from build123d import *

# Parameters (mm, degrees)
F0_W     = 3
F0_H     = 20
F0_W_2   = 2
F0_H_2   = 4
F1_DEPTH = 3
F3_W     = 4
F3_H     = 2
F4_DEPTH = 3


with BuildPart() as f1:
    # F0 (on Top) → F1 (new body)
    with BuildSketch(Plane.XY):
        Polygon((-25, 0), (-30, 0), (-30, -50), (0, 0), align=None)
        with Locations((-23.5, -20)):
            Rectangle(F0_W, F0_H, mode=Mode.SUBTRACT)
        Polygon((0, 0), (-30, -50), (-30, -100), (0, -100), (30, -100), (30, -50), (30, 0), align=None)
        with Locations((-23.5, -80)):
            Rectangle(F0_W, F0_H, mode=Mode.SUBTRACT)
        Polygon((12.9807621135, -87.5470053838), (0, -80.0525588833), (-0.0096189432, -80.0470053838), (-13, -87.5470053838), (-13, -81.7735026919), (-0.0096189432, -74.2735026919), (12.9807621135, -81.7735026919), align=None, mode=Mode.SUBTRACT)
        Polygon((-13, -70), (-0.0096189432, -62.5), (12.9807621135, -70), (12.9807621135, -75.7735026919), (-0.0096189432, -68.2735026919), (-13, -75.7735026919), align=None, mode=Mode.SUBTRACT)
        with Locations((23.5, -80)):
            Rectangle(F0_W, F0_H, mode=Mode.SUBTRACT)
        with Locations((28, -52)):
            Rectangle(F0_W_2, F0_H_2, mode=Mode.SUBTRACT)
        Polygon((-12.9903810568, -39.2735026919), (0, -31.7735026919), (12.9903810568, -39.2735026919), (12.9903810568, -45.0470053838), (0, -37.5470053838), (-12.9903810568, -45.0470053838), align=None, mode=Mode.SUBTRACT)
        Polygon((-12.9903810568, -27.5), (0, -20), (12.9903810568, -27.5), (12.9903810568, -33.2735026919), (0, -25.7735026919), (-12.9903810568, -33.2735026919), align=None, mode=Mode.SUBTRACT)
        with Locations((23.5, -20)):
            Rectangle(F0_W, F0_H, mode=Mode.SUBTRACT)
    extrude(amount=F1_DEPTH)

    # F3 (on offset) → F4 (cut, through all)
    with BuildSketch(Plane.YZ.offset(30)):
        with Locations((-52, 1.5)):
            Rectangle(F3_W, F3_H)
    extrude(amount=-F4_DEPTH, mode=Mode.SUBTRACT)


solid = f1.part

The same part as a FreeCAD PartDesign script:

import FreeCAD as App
import Part
import Sketcher
Q = App.Units.Quantity

doc = App.newDocument("Part")
body = doc.addObject("PartDesign::Body", "Body")

sketch1 = body.newObject("Sketcher::SketchObject", "Sketch")
sketch1.AttachmentSupport = (doc.getObject("XY_Plane"), [""])
sketch1.MapMode = "FlatFace"
sketch1.addGeometry(Part.LineSegment(App.Vector(-30, 0, 0), App.Vector(-30, -100, 0)), False)
sketch1.addGeometry(Part.LineSegment(App.Vector(-30, -100, 0), App.Vector(30, -100, 0)), False)
sketch1.addGeometry(Part.LineSegment(App.Vector(30, -100, 0), App.Vector(30, 0, 0)), False)
sketch1.addGeometry(Part.LineSegment(App.Vector(30, 0, 0), App.Vector(-30, 0, 0)), False)
sketch1.addGeometry(Part.LineSegment(App.Vector(-22, -90, 0), App.Vector(-25, -90, 0)), False)
sketch1.addGeometry(Part.LineSegment(App.Vector(-25, -90, 0), App.Vector(-25, -70, 0)), False)
sketch1.addGeometry(Part.LineSegment(App.Vector(-25, -70, 0), App.Vector(-22, -70, 0)), False)
sketch1.addGeometry(Part.LineSegment(App.Vector(-22, -70, 0), App.Vector(-22, -90, 0)), False)
sketch1.addGeometry(Part.LineSegment(App.Vector(12.981, -81.774, 0), App.Vector(12.981, -87.547, 0)), False)
sketch1.addGeometry(Part.LineSegment(App.Vector(12.981, -87.547, 0), App.Vector(0, -80.053, 0)), False)
sketch1.addGeometry(Part.LineSegment(App.Vector(0, -80.053, 0), App.Vector(-0.01, -80.047, 0)), False)
sketch1.addGeometry(Part.LineSegment(App.Vector(-0.01, -80.047, 0), App.Vector(-13, -87.547, 0)), False)
sketch1.addGeometry(Part.LineSegment(App.Vector(-13, -87.547, 0), App.Vector(-13, -81.774, 0)), False)
sketch1.addGeometry(Part.LineSegment(App.Vector(-13, -81.774, 0), App.Vector(-0.01, -74.274, 0)), False)
sketch1.addGeometry(Part.LineSegment(App.Vector(-0.01, -74.274, 0), App.Vector(12.981, -81.774, 0)), False)
sketch1.addGeometry(Part.LineSegment(App.Vector(-13, -75.774, 0), App.Vector(-13, -70, 0)), False)
sketch1.addGeometry(Part.LineSegment(App.Vector(-13, -70, 0), App.Vector(-0.01, -62.5, 0)), False)
sketch1.addGeometry(Part.LineSegment(App.Vector(-0.01, -62.5, 0), App.Vector(12.981, -70, 0)), False)
sketch1.addGeometry(Part.LineSegment(App.Vector(12.981, -70, 0), App.Vector(12.981, -75.774, 0)), False)
sketch1.addGeometry(Part.LineSegment(App.Vector(12.981, -75.774, 0), App.Vector(-0.01, -68.274, 0)), False)
sketch1.addGeometry(Part.LineSegment(App.Vector(-0.01, -68.274, 0), App.Vector(-13, -75.774, 0)), False)
sketch1.addGeometry(Part.LineSegment(App.Vector(25, -90, 0), App.Vector(22, -90, 0)), False)
sketch1.addGeometry(Part.LineSegment(App.Vector(22, -90, 0), App.Vector(22, -70, 0)), False)
sketch1.addGeometry(Part.LineSegment(App.Vector(22, -70, 0), App.Vector(25, -70, 0)), False)
sketch1.addGeometry(Part.LineSegment(App.Vector(25, -70, 0), App.Vector(25, -90, 0)), False)
sketch1.addGeometry(Part.LineSegment(App.Vector(29, -54, 0), App.Vector(27, -54, 0)), False)
sketch1.addGeometry(Part.LineSegment(App.Vector(27, -54, 0), App.Vector(27, -50, 0)), False)
sketch1.addGeometry(Part.LineSegment(App.Vector(27, -50, 0), App.Vector(29, -50, 0)), False)
sketch1.addGeometry(Part.LineSegment(App.Vector(29, -50, 0), App.Vector(29, -54, 0)), False)
sketch1.addGeometry(Part.LineSegment(App.Vector(-12.99, -45.047, 0), App.Vector(-12.99, -39.274, 0)), False)
sketch1.addGeometry(Part.LineSegment(App.Vector(-12.99, -39.274, 0), App.Vector(0, -31.774, 0)), False)
sketch1.addGeometry(Part.LineSegment(App.Vector(0, -31.774, 0), App.Vector(12.99, -39.274, 0)), False)
sketch1.addGeometry(Part.LineSegment(App.Vector(12.99, -39.274, 0), App.Vector(12.99, -45.047, 0)), False)
sketch1.addGeometry(Part.LineSegment(App.Vector(12.99, -45.047, 0), App.Vector(0, -37.547, 0)), False)
sketch1.addGeometry(Part.LineSegment(App.Vector(0, -37.547, 0), App.Vector(-12.99, -45.047, 0)), False)
sketch1.addGeometry(Part.LineSegment(App.Vector(-22, -30, 0), App.Vector(-25, -30, 0)), False)
sketch1.addGeometry(Part.LineSegment(App.Vector(-25, -30, 0), App.Vector(-25, -10, 0)), False)
sketch1.addGeometry(Part.LineSegment(App.Vector(-25, -10, 0), App.Vector(-22, -10, 0)), False)
sketch1.addGeometry(Part.LineSegment(App.Vector(-22, -10, 0), App.Vector(-22, -30, 0)), False)
sketch1.addGeometry(Part.LineSegment(App.Vector(-12.99, -33.274, 0), App.Vector(-12.99, -27.5, 0)), False)
sketch1.addGeometry(Part.LineSegment(App.Vector(-12.99, -27.5, 0), App.Vector(0, -20, 0)), False)
sketch1.addGeometry(Part.LineSegment(App.Vector(0, -20, 0), App.Vector(12.99, -27.5, 0)), False)
sketch1.addGeometry(Part.LineSegment(App.Vector(12.99, -27.5, 0), App.Vector(12.99, -33.274, 0)), False)
sketch1.addGeometry(Part.LineSegment(App.Vector(12.99, -33.274, 0), App.Vector(0, -25.774, 0)), False)
sketch1.addGeometry(Part.LineSegment(App.Vector(0, -25.774, 0), App.Vector(-12.99, -33.274, 0)), False)
sketch1.addGeometry(Part.LineSegment(App.Vector(25, -30, 0), App.Vector(22, -30, 0)), False)
sketch1.addGeometry(Part.LineSegment(App.Vector(22, -30, 0), App.Vector(22, -10, 0)), False)
sketch1.addGeometry(Part.LineSegment(App.Vector(22, -10, 0), App.Vector(25, -10, 0)), False)
sketch1.addGeometry(Part.LineSegment(App.Vector(25, -10, 0), App.Vector(25, -30, 0)), False)
sketch1.addConstraint(Sketcher.Constraint("Coincident", 0, 2, 1, 1))
sketch1.addConstraint(Sketcher.Constraint("Coincident", 1, 2, 2, 1))
sketch1.addConstraint(Sketcher.Constraint("Coincident", 2, 2, 3, 1))
sketch1.addConstraint(Sketcher.Constraint("Coincident", 3, 2, 0, 1))
sketch1.addConstraint(Sketcher.Constraint("Coincident", 4, 2, 5, 1))
sketch1.addConstraint(Sketcher.Constraint("Coincident", 5, 2, 6, 1))
sketch1.addConstraint(Sketcher.Constraint("Coincident", 6, 2, 7, 1))
sketch1.addConstraint(Sketcher.Constraint("Coincident", 7, 2, 4, 1))
sketch1.addConstraint(Sketcher.Constraint("Coincident", 8, 2, 9, 1))
sketch1.addConstraint(Sketcher.Constraint("Coincident", 9, 2, 10, 1))
sketch1.addConstraint(Sketcher.Constraint("Coincident", 10, 2, 11, 1))
sketch1.addConstraint(Sketcher.Constraint("Coincident", 11, 2, 12, 1))
sketch1.addConstraint(Sketcher.Constraint("Coincident", 12, 2, 13, 1))
sketch1.addConstraint(Sketcher.Constraint("Coincident", 13, 2, 14, 1))
sketch1.addConstraint(Sketcher.Constraint("Coincident", 14, 2, 8, 1))
sketch1.addConstraint(Sketcher.Constraint("Coincident", 15, 2, 16, 1))
sketch1.addConstraint(Sketcher.Constraint("Coincident", 16, 2, 17, 1))
sketch1.addConstraint(Sketcher.Constraint("Coincident", 17, 2, 18, 1))
sketch1.addConstraint(Sketcher.Constraint("Coincident", 18, 2, 19, 1))
sketch1.addConstraint(Sketcher.Constraint("Coincident", 19, 2, 20, 1))
sketch1.addConstraint(Sketcher.Constraint("Coincident", 20, 2, 15, 1))
sketch1.addConstraint(Sketcher.Constraint("Coincident", 21, 2, 22, 1))
sketch1.addConstraint(Sketcher.Constraint("Coincident", 22, 2, 23, 1))
sketch1.addConstraint(Sketcher.Constraint("Coincident", 23, 2, 24, 1))
sketch1.addConstraint(Sketcher.Constraint("Coincident", 24, 2, 21, 1))
sketch1.addConstraint(Sketcher.Constraint("Coincident", 25, 2, 26, 1))
sketch1.addConstraint(Sketcher.Constraint("Coincident", 26, 2, 27, 1))
sketch1.addConstraint(Sketcher.Constraint("Coincident", 27, 2, 28, 1))
sketch1.addConstraint(Sketcher.Constraint("Coincident", 28, 2, 25, 1))
sketch1.addConstraint(Sketcher.Constraint("Coincident", 29, 2, 30, 1))
sketch1.addConstraint(Sketcher.Constraint("Coincident", 30, 2, 31, 1))
sketch1.addConstraint(Sketcher.Constraint("Coincident", 31, 2, 32, 1))
sketch1.addConstraint(Sketcher.Constraint("Coincident", 32, 2, 33, 1))
sketch1.addConstraint(Sketcher.Constraint("Coincident", 33, 2, 34, 1))
sketch1.addConstraint(Sketcher.Constraint("Coincident", 34, 2, 29, 1))
sketch1.addConstraint(Sketcher.Constraint("Coincident", 35, 2, 36, 1))
sketch1.addConstraint(Sketcher.Constraint("Coincident", 36, 2, 37, 1))
sketch1.addConstraint(Sketcher.Constraint("Coincident", 37, 2, 38, 1))
sketch1.addConstraint(Sketcher.Constraint("Coincident", 38, 2, 35, 1))
sketch1.addConstraint(Sketcher.Constraint("Coincident", 39, 2, 40, 1))
sketch1.addConstraint(Sketcher.Constraint("Coincident", 40, 2, 41, 1))
sketch1.addConstraint(Sketcher.Constraint("Coincident", 41, 2, 42, 1))
sketch1.addConstraint(Sketcher.Constraint("Coincident", 42, 2, 43, 1))
sketch1.addConstraint(Sketcher.Constraint("Coincident", 43, 2, 44, 1))
sketch1.addConstraint(Sketcher.Constraint("Coincident", 44, 2, 39, 1))
sketch1.addConstraint(Sketcher.Constraint("Coincident", 45, 2, 46, 1))
sketch1.addConstraint(Sketcher.Constraint("Coincident", 46, 2, 47, 1))
sketch1.addConstraint(Sketcher.Constraint("Coincident", 47, 2, 48, 1))
sketch1.addConstraint(Sketcher.Constraint("Coincident", 48, 2, 45, 1))
sketch1.addConstraint(Sketcher.Constraint("Vertical", 0))
sketch1.addConstraint(Sketcher.Constraint("Horizontal", 1))
sketch1.addConstraint(Sketcher.Constraint("Vertical", 2))
sketch1.addConstraint(Sketcher.Constraint("Horizontal", 3))
sketch1.addConstraint(Sketcher.Constraint("Horizontal", 4))
sketch1.addConstraint(Sketcher.Constraint("Vertical", 5))
sketch1.addConstraint(Sketcher.Constraint("Horizontal", 6))
sketch1.addConstraint(Sketcher.Constraint("Vertical", 7))
sketch1.addConstraint(Sketcher.Constraint("Vertical", 8))
sketch1.addConstraint(Sketcher.Constraint("Vertical", 12))
sketch1.addConstraint(Sketcher.Constraint("Vertical", 15))
sketch1.addConstraint(Sketcher.Constraint("Vertical", 18))
sketch1.addConstraint(Sketcher.Constraint("Horizontal", 21))
sketch1.addConstraint(Sketcher.Constraint("Vertical", 22))
sketch1.addConstraint(Sketcher.Constraint("Horizontal", 23))
sketch1.addConstraint(Sketcher.Constraint("Vertical", 24))
sketch1.addConstraint(Sketcher.Constraint("Horizontal", 25))
sketch1.addConstraint(Sketcher.Constraint("Vertical", 26))
sketch1.addConstraint(Sketcher.Constraint("Horizontal", 27))
sketch1.addConstraint(Sketcher.Constraint("Vertical", 28))
sketch1.addConstraint(Sketcher.Constraint("Vertical", 29))
sketch1.addConstraint(Sketcher.Constraint("Vertical", 32))
sketch1.addConstraint(Sketcher.Constraint("Horizontal", 35))
sketch1.addConstraint(Sketcher.Constraint("Vertical", 36))
sketch1.addConstraint(Sketcher.Constraint("Horizontal", 37))
sketch1.addConstraint(Sketcher.Constraint("Vertical", 38))
sketch1.addConstraint(Sketcher.Constraint("Vertical", 39))
sketch1.addConstraint(Sketcher.Constraint("Vertical", 42))
sketch1.addConstraint(Sketcher.Constraint("Horizontal", 45))
sketch1.addConstraint(Sketcher.Constraint("Vertical", 46))
sketch1.addConstraint(Sketcher.Constraint("Horizontal", 47))
sketch1.addConstraint(Sketcher.Constraint("Vertical", 48))
sketch1.addConstraint(Sketcher.Constraint("Symmetric", 2, 2, 3, 2, -1, 1))
sketch1.addConstraint(Sketcher.Constraint("Symmetric", 7, 2, 21, 2, -2))
sketch1.addConstraint(Sketcher.Constraint("Symmetric", 5, 2, 23, 2, -2))
sketch1.addConstraint(Sketcher.Constraint("Symmetric", 29, 2, 31, 2, -2))
sketch1.addConstraint(Sketcher.Constraint("Symmetric", 39, 2, 41, 2, -2))
sketch1.addConstraint(Sketcher.Constraint("Symmetric", 38, 2, 45, 2, -2))
sketch1.addConstraint(Sketcher.Constraint("Symmetric", 36, 2, 47, 2, -2))
sketch1.addConstraint(Sketcher.Constraint("PointOnObject", 9, 2, -2))
sketch1.addConstraint(Sketcher.Constraint("PointOnObject", 30, 2, -2))
sketch1.addConstraint(Sketcher.Constraint("PointOnObject", 33, 2, -2))
sketch1.addConstraint(Sketcher.Constraint("PointOnObject", 40, 2, -2))
sketch1.addConstraint(Sketcher.Constraint("PointOnObject", 43, 2, -2))
sketch1.addConstraint(Sketcher.Constraint("Parallel", 9, 10))
sketch1.addConstraint(Sketcher.Constraint("Parallel", 11, 13))
sketch1.addConstraint(Sketcher.Constraint("Parallel", 9, 14))
sketch1.addConstraint(Sketcher.Constraint("Parallel", 13, 16))
sketch1.addConstraint(Sketcher.Constraint("Parallel", 14, 17))
sketch1.addConstraint(Sketcher.Constraint("Parallel", 17, 19))
sketch1.addConstraint(Sketcher.Constraint("Parallel", 16, 20))
sketch1.addConstraint(Sketcher.Constraint("Parallel", 20, 30))
sketch1.addConstraint(Sketcher.Constraint("Parallel", 19, 31))
sketch1.addConstraint(Sketcher.Constraint("Parallel", 31, 33))
sketch1.addConstraint(Sketcher.Constraint("Parallel", 30, 34))
sketch1.addConstraint(Sketcher.Constraint("Parallel", 34, 40))
sketch1.addConstraint(Sketcher.Constraint("Parallel", 41, 43))
sketch1.addConstraint(Sketcher.Constraint("Parallel", 40, 44))
sketch1.addConstraint(Sketcher.Constraint("Horizontal", 8, 2, 11, 2))
sketch1.addConstraint(Sketcher.Constraint("Horizontal", 12, 2, 14, 2))
sketch1.addConstraint(Sketcher.Constraint("Horizontal", 6, 2, 15, 2))
sketch1.addConstraint(Sketcher.Constraint("Horizontal", 15, 2, 17, 2))
sketch1.addConstraint(Sketcher.Constraint("Horizontal", 18, 2, 20, 2))
sketch1.addConstraint(Sketcher.Constraint("Vertical", 12, 2, 15, 2))
sketch1.addConstraint(Sketcher.Constraint("Vertical", 13, 2, 16, 2))
sketch1.addConstraint(Sketcher.Constraint("Vertical", 5, 2, 35, 2))
sketch1.addConstraint(Sketcher.Constraint("Vertical", 7, 2, 37, 2))
sketch1.addConstraint(Sketcher.Constraint("Vertical", 34, 2, 39, 2))
sketch1.addConstraint(Sketcher.Constraint("Equal", 12, 15))
sketch1.addConstraint(Sketcher.Constraint("Equal", 18, 29))
sketch1.addConstraint(Sketcher.Constraint("Equal", 24, 36))
sketch1.addConstraint(Sketcher.Constraint("Equal", 32, 39))
sketch1.addConstraint(Sketcher.Constraint("Equal", 20, 30))
sketch1.addConstraint(Sketcher.Constraint("DistanceX", 1, 1, 1, 2, 60.0))
sketch1.addConstraint(Sketcher.Constraint("DistanceX", 4, 2, 4, 1, 3.0))
sketch1.addConstraint(Sketcher.Constraint("DistanceX", 25, 2, 25, 1, 2.0))
sketch1.addConstraint(Sketcher.Constraint("DistanceY", 0, 2, 0, 1, 100.0))
sketch1.addConstraint(Sketcher.Constraint("DistanceY", 5, 1, 5, 2, 20.0))
sketch1.addConstraint(Sketcher.Constraint("DistanceY", 26, 1, 26, 2, 4.0))
sketch1.addConstraint(Sketcher.Constraint("Angle", 9, Q("150 deg")))
sketch1.addConstraint(Sketcher.Constraint("Distance", 11, 15.0))
sketch1.addConstraint(Sketcher.Constraint("DistanceX", 4, 2, -1, 1, 25.0))
sketch1.addConstraint(Sketcher.Constraint("DistanceY", 4, 2, -1, 1, 90.0))
sketch1.addConstraint(Sketcher.Constraint("DistanceX", 11, 2, -1, 1, 13.0))
sketch1.addConstraint(Sketcher.Constraint("DistanceX", -1, 1, 25, 2, 27.0))
sketch1.addConstraint(Sketcher.Constraint("DistanceY", 25, 2, -1, 1, 54.0))
sketch1.addConstraint(Sketcher.Constraint("DistanceY", 35, 2, -1, 1, 30.0))
sketch1.addConstraint(Sketcher.Constraint("DistanceY", 40, 2, -1, 1, 20.0))
sketch1.addConstraint(Sketcher.Constraint("DistanceY", 14, 2, 18, 2, 6.0))
sketch1.addConstraint(Sketcher.Constraint("DistanceY", 19, 2, 29, 2, 29.0))
sketch1.addConstraint(Sketcher.Constraint("DistanceY", 8, 2, 8, 1, 5.773503))
pad1 = body.newObject("PartDesign::Pad", "Pad")
pad1.Profile = sketch1
pad1.Length = 3

sketch2 = body.newObject("Sketcher::SketchObject", "Sketch001")
sketch2.AttachmentSupport = (doc.getObject("YZ_Plane"), [""])
sketch2.MapMode = "FlatFace"
sketch2.AttachmentOffset = App.Placement(App.Vector(0, 0, 30), App.Rotation())
sketch2.addGeometry(Part.LineSegment(App.Vector(-54, 2.5, 0), App.Vector(-54, 0.5, 0)), False)
sketch2.addGeometry(Part.LineSegment(App.Vector(-54, 0.5, 0), App.Vector(-50, 0.5, 0)), False)
sketch2.addGeometry(Part.LineSegment(App.Vector(-50, 0.5, 0), App.Vector(-50, 2.5, 0)), False)
sketch2.addGeometry(Part.LineSegment(App.Vector(-50, 2.5, 0), App.Vector(-54, 2.5, 0)), False)
sketch2.addConstraint(Sketcher.Constraint("Coincident", 0, 2, 1, 1))
sketch2.addConstraint(Sketcher.Constraint("Coincident", 1, 2, 2, 1))
sketch2.addConstraint(Sketcher.Constraint("Coincident", 2, 2, 3, 1))
sketch2.addConstraint(Sketcher.Constraint("Coincident", 3, 2, 0, 1))
sketch2.addConstraint(Sketcher.Constraint("Vertical", 0))
sketch2.addConstraint(Sketcher.Constraint("Horizontal", 1))
sketch2.addConstraint(Sketcher.Constraint("Vertical", 2))
sketch2.addConstraint(Sketcher.Constraint("Horizontal", 3))
sketch2.addConstraint(Sketcher.Constraint("DistanceX", 1, 1, 1, 2, 4.0))
sketch2.addConstraint(Sketcher.Constraint("DistanceY", 0, 2, 0, 1, 2.0))
sketch2.addConstraint(Sketcher.Constraint("DistanceX", 0, 2, -1, 1, 54.0))
sketch2.addConstraint(Sketcher.Constraint("DistanceY", -1, 1, 0, 2, 0.5))
pocket1 = body.newObject("PartDesign::Pocket", "Pocket")
pocket1.Profile = sketch2
pocket1.Length = 3

doc.recompute()
